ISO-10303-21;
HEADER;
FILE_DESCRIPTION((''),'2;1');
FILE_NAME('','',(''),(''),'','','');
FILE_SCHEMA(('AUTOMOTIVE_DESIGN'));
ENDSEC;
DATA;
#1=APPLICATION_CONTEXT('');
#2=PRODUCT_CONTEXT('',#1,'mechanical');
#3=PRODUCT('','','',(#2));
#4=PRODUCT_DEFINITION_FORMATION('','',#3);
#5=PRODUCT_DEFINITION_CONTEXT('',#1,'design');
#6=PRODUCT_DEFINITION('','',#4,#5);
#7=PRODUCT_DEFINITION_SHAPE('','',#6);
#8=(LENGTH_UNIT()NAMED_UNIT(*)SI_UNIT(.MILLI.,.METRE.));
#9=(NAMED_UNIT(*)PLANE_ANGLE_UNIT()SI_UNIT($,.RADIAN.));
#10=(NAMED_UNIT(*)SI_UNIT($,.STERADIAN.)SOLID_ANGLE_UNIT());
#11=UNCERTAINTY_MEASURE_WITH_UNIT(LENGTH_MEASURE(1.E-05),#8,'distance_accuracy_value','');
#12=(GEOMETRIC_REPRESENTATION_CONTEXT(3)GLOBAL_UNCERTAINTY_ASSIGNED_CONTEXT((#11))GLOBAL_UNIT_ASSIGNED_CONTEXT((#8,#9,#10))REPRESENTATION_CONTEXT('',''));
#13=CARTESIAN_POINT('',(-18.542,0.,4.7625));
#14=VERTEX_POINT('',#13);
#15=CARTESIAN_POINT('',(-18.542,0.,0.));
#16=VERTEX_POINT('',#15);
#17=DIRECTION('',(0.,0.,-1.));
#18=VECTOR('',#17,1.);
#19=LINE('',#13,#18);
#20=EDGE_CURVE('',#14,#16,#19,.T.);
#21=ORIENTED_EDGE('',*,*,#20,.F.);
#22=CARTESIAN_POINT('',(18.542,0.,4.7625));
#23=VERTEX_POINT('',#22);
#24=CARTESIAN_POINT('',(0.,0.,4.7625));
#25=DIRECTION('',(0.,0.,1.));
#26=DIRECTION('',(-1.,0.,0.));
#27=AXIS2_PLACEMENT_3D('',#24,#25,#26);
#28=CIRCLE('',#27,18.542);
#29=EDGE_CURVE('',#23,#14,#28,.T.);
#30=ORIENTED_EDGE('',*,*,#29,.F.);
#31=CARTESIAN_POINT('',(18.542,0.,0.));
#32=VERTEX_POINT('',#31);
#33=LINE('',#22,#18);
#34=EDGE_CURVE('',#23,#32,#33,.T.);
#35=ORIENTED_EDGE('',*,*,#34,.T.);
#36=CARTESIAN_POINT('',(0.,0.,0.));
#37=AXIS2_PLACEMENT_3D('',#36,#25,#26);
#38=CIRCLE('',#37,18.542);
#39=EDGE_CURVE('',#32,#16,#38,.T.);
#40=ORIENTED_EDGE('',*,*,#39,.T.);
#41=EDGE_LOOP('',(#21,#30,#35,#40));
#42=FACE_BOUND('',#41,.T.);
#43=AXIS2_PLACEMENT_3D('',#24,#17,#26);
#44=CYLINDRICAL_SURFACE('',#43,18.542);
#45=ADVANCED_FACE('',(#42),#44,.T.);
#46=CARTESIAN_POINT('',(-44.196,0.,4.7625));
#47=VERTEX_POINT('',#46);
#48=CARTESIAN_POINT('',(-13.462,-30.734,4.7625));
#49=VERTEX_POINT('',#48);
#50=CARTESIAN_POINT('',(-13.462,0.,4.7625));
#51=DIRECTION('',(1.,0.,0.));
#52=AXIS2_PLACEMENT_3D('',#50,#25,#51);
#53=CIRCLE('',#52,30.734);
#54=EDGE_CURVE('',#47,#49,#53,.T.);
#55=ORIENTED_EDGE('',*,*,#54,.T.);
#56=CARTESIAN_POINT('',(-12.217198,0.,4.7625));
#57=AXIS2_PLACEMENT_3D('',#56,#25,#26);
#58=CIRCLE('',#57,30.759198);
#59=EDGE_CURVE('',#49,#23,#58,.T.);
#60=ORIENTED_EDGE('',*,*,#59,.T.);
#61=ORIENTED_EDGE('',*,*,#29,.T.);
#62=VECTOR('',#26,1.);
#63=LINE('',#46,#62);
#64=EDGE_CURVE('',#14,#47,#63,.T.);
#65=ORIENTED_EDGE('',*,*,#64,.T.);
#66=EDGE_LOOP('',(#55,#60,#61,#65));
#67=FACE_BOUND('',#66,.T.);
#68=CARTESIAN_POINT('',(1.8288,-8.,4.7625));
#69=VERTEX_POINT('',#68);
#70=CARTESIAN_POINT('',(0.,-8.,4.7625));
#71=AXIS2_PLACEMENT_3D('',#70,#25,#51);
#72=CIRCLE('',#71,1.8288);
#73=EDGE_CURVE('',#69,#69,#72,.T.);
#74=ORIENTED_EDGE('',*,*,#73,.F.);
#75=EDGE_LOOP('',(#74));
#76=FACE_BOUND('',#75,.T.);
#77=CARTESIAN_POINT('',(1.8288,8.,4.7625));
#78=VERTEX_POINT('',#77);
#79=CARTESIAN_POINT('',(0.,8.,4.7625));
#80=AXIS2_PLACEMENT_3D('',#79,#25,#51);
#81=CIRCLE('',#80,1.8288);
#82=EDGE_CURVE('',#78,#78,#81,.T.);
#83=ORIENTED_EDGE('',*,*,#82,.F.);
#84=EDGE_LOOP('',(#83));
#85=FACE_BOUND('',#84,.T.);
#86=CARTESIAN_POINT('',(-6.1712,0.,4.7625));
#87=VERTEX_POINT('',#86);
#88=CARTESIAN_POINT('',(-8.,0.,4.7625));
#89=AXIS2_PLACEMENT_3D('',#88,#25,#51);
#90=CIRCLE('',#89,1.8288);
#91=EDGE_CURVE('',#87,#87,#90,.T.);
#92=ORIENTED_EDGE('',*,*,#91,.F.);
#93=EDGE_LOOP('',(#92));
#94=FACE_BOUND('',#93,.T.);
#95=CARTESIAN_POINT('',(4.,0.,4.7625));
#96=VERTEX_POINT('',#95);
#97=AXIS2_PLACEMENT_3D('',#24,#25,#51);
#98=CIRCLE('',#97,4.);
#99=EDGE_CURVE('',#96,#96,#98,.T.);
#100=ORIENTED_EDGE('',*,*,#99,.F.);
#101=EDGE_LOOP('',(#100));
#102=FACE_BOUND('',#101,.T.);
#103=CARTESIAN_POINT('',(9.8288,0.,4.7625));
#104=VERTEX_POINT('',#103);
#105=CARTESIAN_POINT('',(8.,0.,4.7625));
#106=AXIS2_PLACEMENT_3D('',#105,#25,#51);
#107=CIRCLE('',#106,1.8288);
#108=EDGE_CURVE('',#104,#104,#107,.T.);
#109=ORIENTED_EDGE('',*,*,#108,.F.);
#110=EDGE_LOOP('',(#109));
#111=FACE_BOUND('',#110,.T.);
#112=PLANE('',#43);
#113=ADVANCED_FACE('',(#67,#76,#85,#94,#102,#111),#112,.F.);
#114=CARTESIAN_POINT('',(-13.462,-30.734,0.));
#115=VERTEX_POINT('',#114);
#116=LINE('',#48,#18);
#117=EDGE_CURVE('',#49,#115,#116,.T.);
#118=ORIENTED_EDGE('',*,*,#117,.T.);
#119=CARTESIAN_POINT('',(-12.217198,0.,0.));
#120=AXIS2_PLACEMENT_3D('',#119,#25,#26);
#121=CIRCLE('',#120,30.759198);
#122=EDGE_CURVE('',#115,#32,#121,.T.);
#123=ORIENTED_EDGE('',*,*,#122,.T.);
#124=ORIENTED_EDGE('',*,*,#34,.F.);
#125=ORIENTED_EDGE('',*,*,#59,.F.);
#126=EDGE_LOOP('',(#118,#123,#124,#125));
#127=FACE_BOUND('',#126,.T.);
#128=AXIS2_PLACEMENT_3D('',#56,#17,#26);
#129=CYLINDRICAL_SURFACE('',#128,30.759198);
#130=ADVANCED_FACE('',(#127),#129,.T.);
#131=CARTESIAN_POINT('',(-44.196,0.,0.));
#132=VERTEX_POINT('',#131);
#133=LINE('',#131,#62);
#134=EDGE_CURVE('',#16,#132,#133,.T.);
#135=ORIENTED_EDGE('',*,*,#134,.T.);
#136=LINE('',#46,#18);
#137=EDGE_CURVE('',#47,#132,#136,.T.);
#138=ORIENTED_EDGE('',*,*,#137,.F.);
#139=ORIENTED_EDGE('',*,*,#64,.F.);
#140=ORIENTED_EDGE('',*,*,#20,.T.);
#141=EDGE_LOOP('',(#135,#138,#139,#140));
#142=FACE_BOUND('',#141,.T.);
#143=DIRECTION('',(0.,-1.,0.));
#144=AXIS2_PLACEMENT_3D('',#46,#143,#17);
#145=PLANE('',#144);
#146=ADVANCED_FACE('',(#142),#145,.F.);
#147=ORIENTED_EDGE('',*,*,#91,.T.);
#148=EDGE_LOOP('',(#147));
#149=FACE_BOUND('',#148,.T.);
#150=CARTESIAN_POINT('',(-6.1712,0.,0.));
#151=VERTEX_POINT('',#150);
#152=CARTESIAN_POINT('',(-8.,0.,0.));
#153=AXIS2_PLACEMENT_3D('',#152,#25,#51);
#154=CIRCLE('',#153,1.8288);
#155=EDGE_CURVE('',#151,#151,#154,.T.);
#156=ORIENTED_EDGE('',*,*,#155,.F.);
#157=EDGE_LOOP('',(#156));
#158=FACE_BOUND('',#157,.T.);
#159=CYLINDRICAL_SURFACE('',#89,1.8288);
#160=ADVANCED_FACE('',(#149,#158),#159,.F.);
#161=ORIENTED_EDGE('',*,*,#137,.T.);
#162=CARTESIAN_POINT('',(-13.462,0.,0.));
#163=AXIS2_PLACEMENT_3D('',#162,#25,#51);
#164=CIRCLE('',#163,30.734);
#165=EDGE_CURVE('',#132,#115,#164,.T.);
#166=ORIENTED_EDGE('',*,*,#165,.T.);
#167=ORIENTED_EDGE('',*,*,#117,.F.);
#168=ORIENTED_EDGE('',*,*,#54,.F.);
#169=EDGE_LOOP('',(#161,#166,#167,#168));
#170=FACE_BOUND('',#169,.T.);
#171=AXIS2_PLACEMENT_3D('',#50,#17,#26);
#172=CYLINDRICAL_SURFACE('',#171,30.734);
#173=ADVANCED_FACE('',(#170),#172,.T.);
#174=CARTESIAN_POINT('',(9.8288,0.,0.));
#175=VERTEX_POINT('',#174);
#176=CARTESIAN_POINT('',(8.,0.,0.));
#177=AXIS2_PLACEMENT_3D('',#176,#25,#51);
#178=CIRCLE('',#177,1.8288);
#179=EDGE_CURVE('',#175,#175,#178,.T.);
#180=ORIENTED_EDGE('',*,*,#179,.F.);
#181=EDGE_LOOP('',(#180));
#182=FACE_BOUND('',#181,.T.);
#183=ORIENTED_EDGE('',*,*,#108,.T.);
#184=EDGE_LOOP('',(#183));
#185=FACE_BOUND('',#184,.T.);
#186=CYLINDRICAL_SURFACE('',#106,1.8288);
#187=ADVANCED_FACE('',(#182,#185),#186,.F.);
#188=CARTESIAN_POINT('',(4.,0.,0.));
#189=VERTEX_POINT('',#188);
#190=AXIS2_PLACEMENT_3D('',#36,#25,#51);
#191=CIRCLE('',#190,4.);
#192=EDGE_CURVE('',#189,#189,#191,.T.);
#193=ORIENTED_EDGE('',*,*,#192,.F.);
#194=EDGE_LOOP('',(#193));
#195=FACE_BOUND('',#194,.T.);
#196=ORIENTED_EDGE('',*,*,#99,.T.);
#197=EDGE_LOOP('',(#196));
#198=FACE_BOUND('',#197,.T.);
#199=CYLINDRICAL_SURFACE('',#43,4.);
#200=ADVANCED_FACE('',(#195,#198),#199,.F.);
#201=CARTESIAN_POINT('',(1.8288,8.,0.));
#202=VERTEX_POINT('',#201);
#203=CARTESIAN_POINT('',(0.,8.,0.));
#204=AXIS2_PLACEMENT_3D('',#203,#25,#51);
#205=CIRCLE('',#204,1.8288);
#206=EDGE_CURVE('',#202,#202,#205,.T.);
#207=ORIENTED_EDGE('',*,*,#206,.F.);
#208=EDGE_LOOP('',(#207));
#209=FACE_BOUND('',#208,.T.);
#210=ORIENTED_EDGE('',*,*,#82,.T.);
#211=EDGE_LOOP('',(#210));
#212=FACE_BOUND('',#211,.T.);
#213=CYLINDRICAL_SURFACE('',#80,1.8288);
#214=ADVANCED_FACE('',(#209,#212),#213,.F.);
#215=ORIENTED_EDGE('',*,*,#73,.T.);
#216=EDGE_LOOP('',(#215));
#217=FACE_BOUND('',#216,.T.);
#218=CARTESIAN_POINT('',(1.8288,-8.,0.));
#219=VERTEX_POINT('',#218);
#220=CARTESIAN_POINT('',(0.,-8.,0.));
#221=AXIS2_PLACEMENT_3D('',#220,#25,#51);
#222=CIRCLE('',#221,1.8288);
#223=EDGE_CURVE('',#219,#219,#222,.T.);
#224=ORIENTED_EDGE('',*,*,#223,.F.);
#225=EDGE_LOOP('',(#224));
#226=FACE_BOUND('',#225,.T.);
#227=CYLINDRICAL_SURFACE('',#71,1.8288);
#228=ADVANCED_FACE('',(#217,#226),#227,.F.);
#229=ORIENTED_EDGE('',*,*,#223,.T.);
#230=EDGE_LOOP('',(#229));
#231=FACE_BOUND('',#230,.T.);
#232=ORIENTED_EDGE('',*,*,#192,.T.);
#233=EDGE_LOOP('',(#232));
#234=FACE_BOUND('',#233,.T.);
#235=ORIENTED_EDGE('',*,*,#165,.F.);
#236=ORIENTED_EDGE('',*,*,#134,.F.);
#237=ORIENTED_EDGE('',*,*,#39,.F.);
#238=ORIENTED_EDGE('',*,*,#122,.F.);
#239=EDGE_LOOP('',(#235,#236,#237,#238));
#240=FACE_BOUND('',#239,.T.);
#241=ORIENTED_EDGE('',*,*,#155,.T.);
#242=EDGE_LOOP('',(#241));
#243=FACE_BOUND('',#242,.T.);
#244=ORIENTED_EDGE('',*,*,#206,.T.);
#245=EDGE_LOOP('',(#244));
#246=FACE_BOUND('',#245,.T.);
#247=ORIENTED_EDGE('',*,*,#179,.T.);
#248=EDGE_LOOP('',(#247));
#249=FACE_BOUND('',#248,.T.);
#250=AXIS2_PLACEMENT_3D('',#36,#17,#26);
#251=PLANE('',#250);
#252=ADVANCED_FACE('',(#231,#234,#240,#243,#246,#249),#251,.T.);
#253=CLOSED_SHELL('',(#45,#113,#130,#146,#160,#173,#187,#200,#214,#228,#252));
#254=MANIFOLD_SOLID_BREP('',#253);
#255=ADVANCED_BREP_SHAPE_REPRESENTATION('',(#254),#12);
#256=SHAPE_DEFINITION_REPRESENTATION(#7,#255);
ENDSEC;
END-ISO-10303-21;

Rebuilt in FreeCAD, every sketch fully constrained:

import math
import FreeCAD as App
import Part
import Sketcher
from FreeCAD import Vector
Q = App.Units.Quantity

doc = App.newDocument("Part")
body = doc.addObject("PartDesign::Body", "Body")

sketch1 = doc.addObject("Sketcher::SketchObject", "Sketch")
body.addObject(sketch1)
sketch1.AttachmentSupport = (doc.XY_Plane, [""])
sketch1.MapMode = "FlatFace"
sketch1.addGeometry([
    Part.LineSegment(Vector(-18.5, 0, 0), Vector(-44.2, 0, 0)),
    Part.ArcOfCircle(Part.Circle(Vector(-13.5, 0, 0), Vector(0, 0, 1), 30.7), math.radians(180), math.radians(270)),
    Part.ArcOfCircle(Part.Circle(Vector(-12.2, 0, 0), Vector(0, 0, 1), 30.8), math.radians(-92), math.radians(0)),
    Part.ArcOfCircle(Part.Circle(Vector(0, 0, 0), Vector(0, 0, 1), 18.5), math.radians(0), math.radians(180)),
    Part.Circle(Vector(0, 0, 0), Vector(0, 0, 1), 4),
], False)
sketch1.addConstraint([
    Sketcher.Constraint("Coincident", 0, 2, 1, 1),
    Sketcher.Constraint("Coincident", 1, 2, 2, 1),
    Sketcher.Constraint("Tangent", 2, 2, 3, 1),
    Sketcher.Constraint("Coincident", 3, 2, 0, 1),
    Sketcher.Constraint("Horizontal", 0),
    Sketcher.Constraint("Coincident", 3, 3, -1, 1),
    Sketcher.Constraint("Coincident", 4, 3, -1, 1),
    Sketcher.Constraint("PointOnObject", 1, 3, -1),
    Sketcher.Constraint("PointOnObject", 2, 3, -1),
    Sketcher.Constraint("PointOnObject", 0, 2, -1),
    Sketcher.Constraint("Radius", 1, Q("1.21 in")),
    Sketcher.Constraint("Radius", 3, Q("0.73 in")),
    Sketcher.Constraint("DistanceX", 0, 2, 0, 1, Q("1.01 in")),
    Sketcher.Constraint("Diameter", 4, 8.0),
    Sketcher.Constraint("DistanceX", 1, 2, -1, 1, Q("0.53 in")),
])
pad1 = doc.addObject("PartDesign::Pad", "Pad")
body.addObject(pad1)
pad1.Profile = sketch1
pad1.Length = Q("0.1875 in")

sketch2 = doc.addObject("Sketcher::SketchObject", "Sketch001")
body.addObject(sketch2)
sketch2.AttachmentSupport = (doc.XY_Plane, [""])
sketch2.MapMode = "FlatFace"
sketch2.AttachmentOffset = App.Placement(Vector(0, 0, 0.1875 * 25.4), App.Rotation())
sketch2.addGeometry([
    Part.Circle(Vector(0, 8, 0), Vector(0, 0, 1), 1.8),
    Part.Circle(Vector(8, 0, 0), Vector(0, 0, 1), 1.8),
    Part.Circle(Vector(0, -8, 0), Vector(0, 0, 1), 1.8),
    Part.Circle(Vector(-8, 0, 0), Vector(0, 0, 1), 1.8),
], False)
sketch2.addConstraint([
    Sketcher.Constraint("Equal", 0, 1),
    Sketcher.Constraint("Equal", 1, 2),
    Sketcher.Constraint("Equal", 2, 3),
    Sketcher.Constraint("Symmetric", 0, 3, 2, 3, -1, 1),
    Sketcher.Constraint("Symmetric", 1, 3, 3, 3, -1, 1),
    Sketcher.Constraint("PointOnObject", 0, 3, -2),
    Sketcher.Constraint("PointOnObject", 1, 3, -1),
    Sketcher.Constraint("Diameter", 0, Q("0.144 in")),
    Sketcher.Constraint("DistanceY", -1, 1, 0, 3, 8.0),
    Sketcher.Constraint("DistanceX", -1, 1, 1, 3, 8.0),
])
doc.recompute()
hole = doc.addObject("PartDesign::Hole", "Hole")
body.addObject(hole)
hole.Profile = sketch2
hole.ThreadType = "None"
hole.Diameter = Q("0.144 in")
hole.DepthType = "ThroughAll"

doc.recompute()
